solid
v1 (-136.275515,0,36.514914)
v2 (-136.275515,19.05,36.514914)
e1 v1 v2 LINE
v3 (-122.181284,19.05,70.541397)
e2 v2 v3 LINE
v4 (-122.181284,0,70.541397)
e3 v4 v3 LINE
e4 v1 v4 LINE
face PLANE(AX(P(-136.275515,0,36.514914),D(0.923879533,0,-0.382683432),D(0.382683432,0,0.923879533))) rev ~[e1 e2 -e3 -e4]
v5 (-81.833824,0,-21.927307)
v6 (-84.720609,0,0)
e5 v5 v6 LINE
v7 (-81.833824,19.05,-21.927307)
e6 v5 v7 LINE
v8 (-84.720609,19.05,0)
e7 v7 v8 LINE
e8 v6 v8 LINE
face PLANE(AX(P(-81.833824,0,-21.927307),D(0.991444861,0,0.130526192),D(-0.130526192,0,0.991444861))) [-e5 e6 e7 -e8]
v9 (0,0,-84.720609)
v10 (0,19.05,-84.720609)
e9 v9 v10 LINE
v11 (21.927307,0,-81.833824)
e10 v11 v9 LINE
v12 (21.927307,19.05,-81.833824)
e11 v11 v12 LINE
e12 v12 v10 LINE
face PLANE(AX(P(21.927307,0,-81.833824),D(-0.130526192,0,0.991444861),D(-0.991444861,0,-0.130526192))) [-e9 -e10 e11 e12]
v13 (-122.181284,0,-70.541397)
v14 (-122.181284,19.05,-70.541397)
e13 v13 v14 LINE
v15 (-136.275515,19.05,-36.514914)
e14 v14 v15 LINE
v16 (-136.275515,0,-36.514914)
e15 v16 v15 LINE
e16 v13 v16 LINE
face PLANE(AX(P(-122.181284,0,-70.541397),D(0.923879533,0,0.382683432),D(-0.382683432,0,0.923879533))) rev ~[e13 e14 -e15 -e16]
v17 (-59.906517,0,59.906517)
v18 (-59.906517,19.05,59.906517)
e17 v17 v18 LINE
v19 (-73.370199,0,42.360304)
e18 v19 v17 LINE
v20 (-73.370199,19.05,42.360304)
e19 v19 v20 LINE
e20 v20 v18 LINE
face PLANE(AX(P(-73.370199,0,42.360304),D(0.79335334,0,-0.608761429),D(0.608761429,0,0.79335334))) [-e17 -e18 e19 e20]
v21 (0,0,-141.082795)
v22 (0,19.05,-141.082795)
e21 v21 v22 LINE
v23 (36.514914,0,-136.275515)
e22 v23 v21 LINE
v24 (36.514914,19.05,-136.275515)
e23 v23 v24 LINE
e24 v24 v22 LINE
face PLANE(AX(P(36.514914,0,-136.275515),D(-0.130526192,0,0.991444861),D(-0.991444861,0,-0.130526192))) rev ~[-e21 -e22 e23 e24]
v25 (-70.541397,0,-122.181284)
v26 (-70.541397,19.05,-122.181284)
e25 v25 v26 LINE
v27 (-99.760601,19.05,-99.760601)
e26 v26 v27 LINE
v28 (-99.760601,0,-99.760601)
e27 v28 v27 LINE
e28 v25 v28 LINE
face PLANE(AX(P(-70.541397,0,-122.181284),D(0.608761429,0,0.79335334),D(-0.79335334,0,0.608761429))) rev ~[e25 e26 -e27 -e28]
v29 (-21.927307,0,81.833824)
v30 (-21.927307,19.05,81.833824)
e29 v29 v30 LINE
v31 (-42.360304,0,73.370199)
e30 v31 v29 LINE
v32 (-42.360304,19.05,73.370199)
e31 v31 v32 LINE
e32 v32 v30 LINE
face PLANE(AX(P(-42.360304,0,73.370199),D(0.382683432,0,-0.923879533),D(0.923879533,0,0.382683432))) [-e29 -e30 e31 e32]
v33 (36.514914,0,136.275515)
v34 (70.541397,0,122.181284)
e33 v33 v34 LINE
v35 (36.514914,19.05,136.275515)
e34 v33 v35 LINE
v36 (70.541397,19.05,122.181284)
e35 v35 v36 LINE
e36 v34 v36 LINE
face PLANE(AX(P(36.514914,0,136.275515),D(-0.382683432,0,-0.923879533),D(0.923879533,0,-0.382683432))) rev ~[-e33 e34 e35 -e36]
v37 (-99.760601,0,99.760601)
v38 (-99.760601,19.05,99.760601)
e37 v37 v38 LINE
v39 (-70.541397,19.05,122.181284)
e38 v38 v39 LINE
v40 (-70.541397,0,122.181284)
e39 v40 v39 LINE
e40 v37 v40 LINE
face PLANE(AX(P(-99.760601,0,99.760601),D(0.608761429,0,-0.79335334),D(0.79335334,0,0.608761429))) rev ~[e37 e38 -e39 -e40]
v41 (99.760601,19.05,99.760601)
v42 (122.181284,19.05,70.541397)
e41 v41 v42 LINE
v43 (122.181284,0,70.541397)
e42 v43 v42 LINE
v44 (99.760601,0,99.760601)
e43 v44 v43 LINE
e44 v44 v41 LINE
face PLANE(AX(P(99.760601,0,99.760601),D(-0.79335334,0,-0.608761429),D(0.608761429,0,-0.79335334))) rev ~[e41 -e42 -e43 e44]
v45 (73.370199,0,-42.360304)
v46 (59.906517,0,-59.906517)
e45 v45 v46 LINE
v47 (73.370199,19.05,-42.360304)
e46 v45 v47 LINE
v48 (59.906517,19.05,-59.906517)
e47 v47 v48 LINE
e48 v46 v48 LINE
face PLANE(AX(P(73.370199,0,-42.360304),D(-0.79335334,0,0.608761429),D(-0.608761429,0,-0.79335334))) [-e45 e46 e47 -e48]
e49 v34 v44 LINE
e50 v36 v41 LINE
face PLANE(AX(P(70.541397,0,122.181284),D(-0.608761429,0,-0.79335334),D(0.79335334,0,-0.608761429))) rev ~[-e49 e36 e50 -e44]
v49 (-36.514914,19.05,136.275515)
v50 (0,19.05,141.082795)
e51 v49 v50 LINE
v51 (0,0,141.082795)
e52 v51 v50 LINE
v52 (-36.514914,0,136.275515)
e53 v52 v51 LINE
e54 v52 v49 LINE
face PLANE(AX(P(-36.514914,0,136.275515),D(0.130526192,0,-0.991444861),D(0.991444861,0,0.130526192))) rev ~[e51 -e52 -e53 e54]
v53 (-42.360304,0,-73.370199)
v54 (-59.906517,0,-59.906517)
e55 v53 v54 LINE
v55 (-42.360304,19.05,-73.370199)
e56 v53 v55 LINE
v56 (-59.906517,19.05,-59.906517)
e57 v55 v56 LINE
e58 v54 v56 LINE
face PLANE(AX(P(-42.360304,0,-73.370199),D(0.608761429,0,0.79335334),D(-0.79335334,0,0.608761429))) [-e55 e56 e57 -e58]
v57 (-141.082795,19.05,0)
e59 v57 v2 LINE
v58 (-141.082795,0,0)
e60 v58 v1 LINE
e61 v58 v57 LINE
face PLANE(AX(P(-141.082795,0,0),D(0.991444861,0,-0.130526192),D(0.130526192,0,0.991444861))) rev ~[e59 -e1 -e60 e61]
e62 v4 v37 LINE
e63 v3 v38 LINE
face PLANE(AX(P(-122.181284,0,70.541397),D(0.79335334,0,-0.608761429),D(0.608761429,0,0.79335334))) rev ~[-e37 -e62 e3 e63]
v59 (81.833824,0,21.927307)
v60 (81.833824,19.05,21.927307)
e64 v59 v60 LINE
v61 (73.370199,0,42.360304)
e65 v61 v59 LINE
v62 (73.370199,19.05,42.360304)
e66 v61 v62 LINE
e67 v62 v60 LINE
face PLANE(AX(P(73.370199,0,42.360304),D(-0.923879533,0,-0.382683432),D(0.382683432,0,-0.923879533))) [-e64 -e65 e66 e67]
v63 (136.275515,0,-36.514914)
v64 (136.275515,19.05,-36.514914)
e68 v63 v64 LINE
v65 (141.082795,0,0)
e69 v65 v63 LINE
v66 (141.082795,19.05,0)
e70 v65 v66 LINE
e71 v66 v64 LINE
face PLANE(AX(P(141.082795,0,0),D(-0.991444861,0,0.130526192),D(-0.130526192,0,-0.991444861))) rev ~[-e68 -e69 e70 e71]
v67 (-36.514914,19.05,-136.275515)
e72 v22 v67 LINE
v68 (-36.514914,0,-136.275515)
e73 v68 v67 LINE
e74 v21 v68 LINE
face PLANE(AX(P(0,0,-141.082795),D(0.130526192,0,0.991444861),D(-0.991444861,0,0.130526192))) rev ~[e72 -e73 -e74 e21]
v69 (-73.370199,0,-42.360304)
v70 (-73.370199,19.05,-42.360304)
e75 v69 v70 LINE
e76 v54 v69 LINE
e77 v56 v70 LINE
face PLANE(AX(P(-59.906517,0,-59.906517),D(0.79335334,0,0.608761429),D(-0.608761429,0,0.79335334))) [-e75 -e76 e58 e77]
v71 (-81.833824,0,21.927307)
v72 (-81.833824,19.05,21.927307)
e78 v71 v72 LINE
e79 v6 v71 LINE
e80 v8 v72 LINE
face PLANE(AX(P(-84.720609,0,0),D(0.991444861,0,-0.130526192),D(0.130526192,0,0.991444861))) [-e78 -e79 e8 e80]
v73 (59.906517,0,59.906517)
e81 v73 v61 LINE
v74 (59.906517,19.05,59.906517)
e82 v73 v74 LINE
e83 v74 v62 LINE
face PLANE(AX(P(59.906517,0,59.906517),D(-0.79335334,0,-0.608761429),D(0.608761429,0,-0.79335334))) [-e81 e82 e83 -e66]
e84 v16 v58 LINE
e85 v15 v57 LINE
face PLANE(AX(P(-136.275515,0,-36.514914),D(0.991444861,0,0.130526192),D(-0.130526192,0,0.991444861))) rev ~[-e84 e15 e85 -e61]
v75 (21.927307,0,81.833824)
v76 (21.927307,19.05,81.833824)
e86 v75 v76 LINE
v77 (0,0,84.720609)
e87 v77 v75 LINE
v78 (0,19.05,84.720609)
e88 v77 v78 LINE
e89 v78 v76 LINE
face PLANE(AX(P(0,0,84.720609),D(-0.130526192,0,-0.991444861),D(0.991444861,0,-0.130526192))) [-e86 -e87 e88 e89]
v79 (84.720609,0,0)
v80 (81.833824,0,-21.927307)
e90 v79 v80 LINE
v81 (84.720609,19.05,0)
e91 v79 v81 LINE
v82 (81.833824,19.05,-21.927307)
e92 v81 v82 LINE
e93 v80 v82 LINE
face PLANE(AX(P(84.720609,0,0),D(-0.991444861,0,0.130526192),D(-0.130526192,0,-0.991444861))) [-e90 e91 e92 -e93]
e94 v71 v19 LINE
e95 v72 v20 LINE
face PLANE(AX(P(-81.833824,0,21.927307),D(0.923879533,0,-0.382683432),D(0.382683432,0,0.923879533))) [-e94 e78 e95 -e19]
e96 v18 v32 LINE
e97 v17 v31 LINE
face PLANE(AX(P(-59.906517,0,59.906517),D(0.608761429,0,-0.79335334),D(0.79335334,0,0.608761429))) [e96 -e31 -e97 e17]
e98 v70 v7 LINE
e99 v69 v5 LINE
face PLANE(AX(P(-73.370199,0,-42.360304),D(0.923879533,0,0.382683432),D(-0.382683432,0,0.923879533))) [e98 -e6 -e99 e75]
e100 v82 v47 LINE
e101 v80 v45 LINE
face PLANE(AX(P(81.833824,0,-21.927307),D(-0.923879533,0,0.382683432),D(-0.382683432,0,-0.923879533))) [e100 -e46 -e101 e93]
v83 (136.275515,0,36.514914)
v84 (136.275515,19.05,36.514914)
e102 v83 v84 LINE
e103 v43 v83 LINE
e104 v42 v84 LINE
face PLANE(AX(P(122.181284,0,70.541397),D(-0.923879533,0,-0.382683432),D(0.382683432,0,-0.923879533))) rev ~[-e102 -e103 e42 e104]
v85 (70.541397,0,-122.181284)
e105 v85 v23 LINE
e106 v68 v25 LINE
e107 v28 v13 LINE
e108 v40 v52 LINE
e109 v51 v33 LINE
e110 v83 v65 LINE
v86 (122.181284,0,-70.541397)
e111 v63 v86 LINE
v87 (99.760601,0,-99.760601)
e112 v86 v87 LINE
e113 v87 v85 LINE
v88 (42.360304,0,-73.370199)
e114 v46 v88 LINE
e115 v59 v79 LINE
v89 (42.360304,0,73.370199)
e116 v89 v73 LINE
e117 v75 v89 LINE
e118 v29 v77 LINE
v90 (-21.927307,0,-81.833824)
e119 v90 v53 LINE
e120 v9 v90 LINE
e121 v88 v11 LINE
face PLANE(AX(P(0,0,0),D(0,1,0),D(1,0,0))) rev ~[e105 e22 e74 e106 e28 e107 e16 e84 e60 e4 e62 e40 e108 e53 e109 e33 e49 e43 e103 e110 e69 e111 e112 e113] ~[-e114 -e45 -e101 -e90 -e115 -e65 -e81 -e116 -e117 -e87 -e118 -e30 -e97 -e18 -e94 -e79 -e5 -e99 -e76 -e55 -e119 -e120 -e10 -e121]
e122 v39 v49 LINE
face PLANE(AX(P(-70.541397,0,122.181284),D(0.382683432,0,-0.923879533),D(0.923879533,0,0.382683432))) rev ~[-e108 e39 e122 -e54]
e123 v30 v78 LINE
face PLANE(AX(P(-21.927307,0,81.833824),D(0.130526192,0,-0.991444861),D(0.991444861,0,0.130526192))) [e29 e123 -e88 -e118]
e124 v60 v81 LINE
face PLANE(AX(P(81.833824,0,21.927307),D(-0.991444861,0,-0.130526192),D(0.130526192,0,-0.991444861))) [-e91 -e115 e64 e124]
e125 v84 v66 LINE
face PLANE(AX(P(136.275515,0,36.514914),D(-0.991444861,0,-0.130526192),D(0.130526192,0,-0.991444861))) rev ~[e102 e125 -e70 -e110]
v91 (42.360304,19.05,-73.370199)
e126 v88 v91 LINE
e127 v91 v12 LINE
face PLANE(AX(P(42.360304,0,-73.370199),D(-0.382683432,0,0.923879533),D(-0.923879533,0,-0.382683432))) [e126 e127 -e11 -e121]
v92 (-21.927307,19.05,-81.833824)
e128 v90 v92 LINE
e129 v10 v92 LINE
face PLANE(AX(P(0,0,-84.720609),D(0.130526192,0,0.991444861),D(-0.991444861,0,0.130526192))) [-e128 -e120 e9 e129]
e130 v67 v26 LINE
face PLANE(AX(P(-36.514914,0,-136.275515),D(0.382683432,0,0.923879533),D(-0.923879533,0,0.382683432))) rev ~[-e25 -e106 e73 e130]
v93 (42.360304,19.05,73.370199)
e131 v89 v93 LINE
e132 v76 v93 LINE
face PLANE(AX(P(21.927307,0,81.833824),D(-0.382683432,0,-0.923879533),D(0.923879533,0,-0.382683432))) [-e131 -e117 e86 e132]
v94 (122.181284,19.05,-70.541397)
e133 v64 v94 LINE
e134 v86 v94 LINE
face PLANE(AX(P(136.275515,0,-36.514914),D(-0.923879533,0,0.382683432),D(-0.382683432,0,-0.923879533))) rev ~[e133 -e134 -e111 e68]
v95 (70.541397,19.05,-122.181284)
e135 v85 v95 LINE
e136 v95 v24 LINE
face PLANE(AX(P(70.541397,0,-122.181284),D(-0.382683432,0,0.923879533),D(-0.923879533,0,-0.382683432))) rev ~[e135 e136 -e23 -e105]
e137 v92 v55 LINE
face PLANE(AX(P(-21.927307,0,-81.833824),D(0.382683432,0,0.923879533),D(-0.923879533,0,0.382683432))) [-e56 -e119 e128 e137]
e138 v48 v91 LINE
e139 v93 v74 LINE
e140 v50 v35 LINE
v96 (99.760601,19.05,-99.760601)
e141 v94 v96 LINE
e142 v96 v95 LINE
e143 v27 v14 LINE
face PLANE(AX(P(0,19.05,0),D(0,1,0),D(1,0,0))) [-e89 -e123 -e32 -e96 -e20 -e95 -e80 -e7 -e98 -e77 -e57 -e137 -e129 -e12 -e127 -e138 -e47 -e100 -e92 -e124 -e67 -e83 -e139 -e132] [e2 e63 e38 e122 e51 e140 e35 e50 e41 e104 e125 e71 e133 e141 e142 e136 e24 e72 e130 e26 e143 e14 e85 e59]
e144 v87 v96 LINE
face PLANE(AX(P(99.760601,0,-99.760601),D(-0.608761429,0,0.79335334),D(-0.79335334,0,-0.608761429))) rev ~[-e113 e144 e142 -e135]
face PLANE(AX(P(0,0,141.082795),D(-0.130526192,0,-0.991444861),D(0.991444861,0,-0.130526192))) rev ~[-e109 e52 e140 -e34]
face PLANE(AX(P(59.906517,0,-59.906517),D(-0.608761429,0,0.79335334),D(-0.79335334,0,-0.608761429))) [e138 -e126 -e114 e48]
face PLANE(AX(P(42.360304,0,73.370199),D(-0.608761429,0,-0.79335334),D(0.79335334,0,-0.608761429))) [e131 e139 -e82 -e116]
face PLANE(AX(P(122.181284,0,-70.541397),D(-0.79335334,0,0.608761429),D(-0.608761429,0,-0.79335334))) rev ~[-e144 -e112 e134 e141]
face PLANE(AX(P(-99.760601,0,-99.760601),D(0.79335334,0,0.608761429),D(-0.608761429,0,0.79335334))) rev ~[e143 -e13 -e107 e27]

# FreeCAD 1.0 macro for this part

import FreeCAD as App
import Part
import Sketcher

V = App.Vector
Q = App.Units.Quantity


def add_polygon(sketch, points):
    """Adds a closed chain of lines whose ends are joined by coincident constraints."""
    first, n = sketch.GeometryCount, len(points)
    for a, b in zip(points, points[1:] + points[:1]):
        sketch.addGeometry(Part.LineSegment(App.Vector(*a, 0), App.Vector(*b, 0)), False)
    for i in range(n):
        sketch.addConstraint(Sketcher.Constraint("Coincident", first + i, 2, first + (i + 1) % n, 1))

doc = App.newDocument("Part")
params = doc.addObject("Spreadsheet::Sheet", "Params")
for row, (alias, value) in enumerate([
    ("sketch1_length", "1.45 in"),
    ("pad1_length", "0.75 in"),
], start=1):
    params.set(f"A{row}", alias)
    params.set(f"B{row}", "=" + value)
    params.setAlias(f"B{row}", alias)

body = doc.addObject("PartDesign::Body", "Body")

# Sketch on XZ plane
sketch1 = doc.addObject("Sketcher::SketchObject", "Sketch")
body.addObject(sketch1)
sketch1.AttachmentSupport = (doc.XZ_Plane, [""])
sketch1.MapMode = "FlatFace"
add_polygon(sketch1, [(-141, 0), (-136, 37), (-122, 71), (-100, 100), (-71, 122), (-37, 136), (0, 141), (37, 136), (71, 122), (100, 100), (122, 71), (136, 37), (141, 0), (136, -37), (122, -71), (100, -100), (71, -122), (37, -136), (0, -141), (-37, -136), (-71, -122), (-100, -100), (-122, -71), (-136, -37)])  # lines 0-23
add_polygon(sketch1, [(-82, 22), (-85, 0), (-82, -22), (-73, -42), (-60, -60), (-42, -73), (-22, -82), (0, -85), (22, -82), (42, -73), (60, -60), (73, -42), (82, -22), (85, 0), (82, 22), (73, 42), (60, 60), (42, 73), (22, 82), (0, 85), (-22, 82), (-42, 73), (-60, 60), (-73, 42)])  # lines 24-47
sketch1.addConstraint([
    Sketcher.Constraint("Symmetric", 0, 2, 12, 2, -1, 1),
    Sketcher.Constraint("Symmetric", 1, 2, 13, 2, -1, 1),
    Sketcher.Constraint("Symmetric", 2, 2, 14, 2, -1, 1),
    Sketcher.Constraint("Symmetric", 3, 2, 15, 2, -1, 1),
    Sketcher.Constraint("Symmetric", 4, 2, 16, 2, -1, 1),
    Sketcher.Constraint("Symmetric", 5, 2, 17, 2, -1, 1),
    Sketcher.Constraint("Symmetric", 6, 2, 18, 2, -1, 1),
    Sketcher.Constraint("Symmetric", 7, 2, 19, 2, -1, 1),
    Sketcher.Constraint("Symmetric", 8, 2, 20, 2, -1, 1),
    Sketcher.Constraint("Symmetric", 9, 2, 21, 2, -1, 1),
    Sketcher.Constraint("Symmetric", 10, 2, 22, 2, -1, 1),
    Sketcher.Constraint("Symmetric", 11, 2, 23, 2, -1, 1),
    Sketcher.Constraint("Symmetric", 24, 2, 36, 2, -1, 1),
    Sketcher.Constraint("Symmetric", 25, 2, 37, 2, -1, 1),
    Sketcher.Constraint("Symmetric", 26, 2, 38, 2, -1, 1),
    Sketcher.Constraint("Symmetric", 27, 2, 39, 2, -1, 1),
    Sketcher.Constraint("Symmetric", 28, 2, 40, 2, -1, 1),
    Sketcher.Constraint("Symmetric", 29, 2, 41, 2, -1, 1),
    Sketcher.Constraint("Symmetric", 30, 2, 42, 2, -1, 1),
    Sketcher.Constraint("Symmetric", 31, 2, 43, 2, -1, 1),
    Sketcher.Constraint("Symmetric", 32, 2, 44, 2, -1, 1),
    Sketcher.Constraint("Symmetric", 33, 2, 45, 2, -1, 1),
    Sketcher.Constraint("Symmetric", 34, 2, 46, 2, -1, 1),
    Sketcher.Constraint("Symmetric", 35, 2, 47, 2, -1, 1),
    Sketcher.Constraint("Symmetric", 4, 2, 6, 2, -2),
    Sketcher.Constraint("Symmetric", 3, 2, 7, 2, -2),
    Sketcher.Constraint("Symmetric", 2, 2, 8, 2, -2),
    Sketcher.Constraint("Symmetric", 1, 2, 9, 2, -2),
    Sketcher.Constraint("Symmetric", 0, 2, 10, 2, -2),
    Sketcher.Constraint("Symmetric", 29, 2, 31, 2, -2),
    Sketcher.Constraint("Symmetric", 28, 2, 32, 2, -2),
    Sketcher.Constraint("Symmetric", 27, 2, 33, 2, -2),
    Sketcher.Constraint("Symmetric", 26, 2, 34, 2, -2),
    Sketcher.Constraint("Symmetric", 25, 2, 35, 2, -2),
    Sketcher.Constraint("PointOnObject", 5, 2, -2),
    Sketcher.Constraint("PointOnObject", 11, 2, -1),
    Sketcher.Constraint("PointOnObject", 24, 2, -1),
    Sketcher.Constraint("PointOnObject", 30, 2, -2),
    Sketcher.Constraint("Perpendicular", 0, 6),
    Sketcher.Constraint("Perpendicular", 1, 7),
    Sketcher.Constraint("Perpendicular", 2, 8),
    Sketcher.Constraint("Perpendicular", 18, 24),
    Sketcher.Constraint("Parallel", 22, 26),
    Sketcher.Constraint("Parallel", 21, 27),
    Sketcher.Constraint("Parallel", 20, 28),
    Sketcher.Constraint("Parallel", 19, 29),
    Sketcher.Constraint("Perpendicular", 24, 30),
    Sketcher.Constraint("Equal", 0, 1),
    Sketcher.Constraint("Equal", 1, 2),
    Sketcher.Constraint("Equal", 2, 3),
    Sketcher.Constraint("Equal", 3, 4),
    Sketcher.Constraint("Equal", 4, 5),
    Sketcher.Constraint("Equal", 25, 26),
    Sketcher.Constraint("Equal", 26, 27),
    Sketcher.Constraint("Equal", 27, 28),
    Sketcher.Constraint("Equal", 28, 29),
    Sketcher.Constraint("Equal", 29, 30),
    Sketcher.Constraint("Angle", 0, Q("82.5 deg")),
    Sketcher.Constraint("Angle", 1, Q("67.5 deg")),
    Sketcher.Constraint("Angle", 2, Q("52.5 deg")),
    Sketcher.Constraint("Distance", 0, Q("1.45 in")),
    Sketcher.Constraint("DistanceX", 26, 2, -1, 1, 73.370199),
])
sketch1.setExpression("Constraints[108]", "Params.sketch1_length")
pad1 = doc.addObject("PartDesign::Pad", "Pad")
body.addObject(pad1)
pad1.Profile = sketch1
pad1.setExpression("Length", "Params.pad1_length")
pad1.Reversed = True

doc.recompute()
